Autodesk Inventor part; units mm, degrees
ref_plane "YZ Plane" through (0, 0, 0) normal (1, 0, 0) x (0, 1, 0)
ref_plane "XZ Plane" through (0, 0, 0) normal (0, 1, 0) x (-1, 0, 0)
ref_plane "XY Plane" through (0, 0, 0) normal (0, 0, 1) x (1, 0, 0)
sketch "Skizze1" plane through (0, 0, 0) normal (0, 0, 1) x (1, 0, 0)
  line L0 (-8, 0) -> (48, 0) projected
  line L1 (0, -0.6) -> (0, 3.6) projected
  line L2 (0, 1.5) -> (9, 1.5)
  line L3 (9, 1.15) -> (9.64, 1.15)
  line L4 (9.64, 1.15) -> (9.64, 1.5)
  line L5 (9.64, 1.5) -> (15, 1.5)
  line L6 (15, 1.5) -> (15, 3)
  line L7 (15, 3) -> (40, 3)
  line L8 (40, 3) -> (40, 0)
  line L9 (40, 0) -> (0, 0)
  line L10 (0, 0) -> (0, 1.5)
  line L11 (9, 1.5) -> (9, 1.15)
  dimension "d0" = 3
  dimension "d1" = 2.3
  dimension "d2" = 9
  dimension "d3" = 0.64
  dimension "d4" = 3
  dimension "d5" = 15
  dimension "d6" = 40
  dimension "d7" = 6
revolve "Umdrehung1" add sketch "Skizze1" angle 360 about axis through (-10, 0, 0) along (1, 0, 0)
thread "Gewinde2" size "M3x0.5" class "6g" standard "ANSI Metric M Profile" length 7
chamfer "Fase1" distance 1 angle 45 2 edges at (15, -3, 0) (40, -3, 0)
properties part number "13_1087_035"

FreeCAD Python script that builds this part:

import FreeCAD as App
import Part
import Sketcher

V = App.Vector
Q = App.Units.Quantity


def edges_at(feature, points):
    """Names of the edges that pass closest to the given points."""
    edges = feature.Shape.Edges
    near = lambda p: min(range(len(edges)), key=lambda i: edges[i].distToShape(Part.Vertex(*p))[0])
    return sorted({f"Edge{near(p) + 1}" for p in points})

doc = App.newDocument("Part")
body = doc.addObject("PartDesign::Body", "Body")

sketch1 = doc.addObject("Sketcher::SketchObject", "Sketch")
body.addObject(sketch1)
sketch1.AttachmentSupport = (doc.XY_Plane, [""])
sketch1.MapMode = "FlatFace"
sketch1.addGeometry([
    Part.LineSegment(V(0, 1.5, 0), V(0, 0, 0)),
    Part.LineSegment(V(0, 0, 0), V(40, 0, 0)),
    Part.LineSegment(V(40, 0, 0), V(40, 3, 0)),
    Part.LineSegment(V(40, 3, 0), V(15, 3, 0)),
    Part.LineSegment(V(15, 3, 0), V(15, 1.5, 0)),
    Part.LineSegment(V(15, 1.5, 0), V(9.64, 1.5, 0)),
    Part.LineSegment(V(9.64, 1.5, 0), V(9.64, 1.15, 0)),
    Part.LineSegment(V(9.64, 1.15, 0), V(9, 1.15, 0)),
    Part.LineSegment(V(9, 1.15, 0), V(9, 1.5, 0)),
    Part.LineSegment(V(9, 1.5, 0), V(0, 1.5, 0)),
], False)
sketch1.addConstraint([
    Sketcher.Constraint("Coincident", 0, 2, 1, 1),
    Sketcher.Constraint("Coincident", 1, 2, 2, 1),
    Sketcher.Constraint("Coincident", 2, 2, 3, 1),
    Sketcher.Constraint("Coincident", 3, 2, 4, 1),
    Sketcher.Constraint("Coincident", 4, 2, 5, 1),
    Sketcher.Constraint("Coincident", 5, 2, 6, 1),
    Sketcher.Constraint("Coincident", 6, 2, 7, 1),
    Sketcher.Constraint("Coincident", 7, 2, 8, 1),
    Sketcher.Constraint("Coincident", 8, 2, 9, 1),
    Sketcher.Constraint("Coincident", 9, 2, 0, 1),
    Sketcher.Constraint("Vertical", 0),
    Sketcher.Constraint("Horizontal", 1),
    Sketcher.Constraint("Vertical", 2),
    Sketcher.Constraint("Horizontal", 3),
    Sketcher.Constraint("Vertical", 4),
    Sketcher.Constraint("Horizontal", 5),
    Sketcher.Constraint("Vertical", 6),
    Sketcher.Constraint("Horizontal", 7),
    Sketcher.Constraint("Vertical", 8),
    Sketcher.Constraint("Horizontal", 9),
    Sketcher.Constraint("Coincident", 0, 2, -1, 1),
    Sketcher.Constraint("Horizontal", 5, 2, 8, 2),
    Sketcher.Constraint("Equal", 0, 4),
    Sketcher.Constraint("DistanceX", 1, 1, 1, 2, Q("40 mm")),
    Sketcher.Constraint("DistanceX", 9, 2, 9, 1, Q("9 mm")),
    Sketcher.Constraint("DistanceY", 2, 1, 2, 2, Q("3 mm")),
    Sketcher.Constraint("DistanceX", -1, 1, 3, 2, Q("15 mm")),
    Sketcher.Constraint("DistanceX", 7, 2, 7, 1, Q("0.64 mm")),
    Sketcher.Constraint("DistanceY", 6, 2, 6, 1, Q("0.35 mm")),
])
revolution = doc.addObject("PartDesign::Revolution", "Revolution")
body.addObject(revolution)
revolution.Profile = sketch1
revolution.ReferenceAxis = (sketch1, ["H_Axis"])
revolution.Angle = 360
doc.recompute()

chamfer = doc.addObject("PartDesign::Chamfer", "Chamfer")
body.addObject(chamfer)
chamfer.Base = (revolution, edges_at(revolution, [(15, -3, 0), (40, -3, 0)]))
chamfer.Size = 1

doc.recompute()
